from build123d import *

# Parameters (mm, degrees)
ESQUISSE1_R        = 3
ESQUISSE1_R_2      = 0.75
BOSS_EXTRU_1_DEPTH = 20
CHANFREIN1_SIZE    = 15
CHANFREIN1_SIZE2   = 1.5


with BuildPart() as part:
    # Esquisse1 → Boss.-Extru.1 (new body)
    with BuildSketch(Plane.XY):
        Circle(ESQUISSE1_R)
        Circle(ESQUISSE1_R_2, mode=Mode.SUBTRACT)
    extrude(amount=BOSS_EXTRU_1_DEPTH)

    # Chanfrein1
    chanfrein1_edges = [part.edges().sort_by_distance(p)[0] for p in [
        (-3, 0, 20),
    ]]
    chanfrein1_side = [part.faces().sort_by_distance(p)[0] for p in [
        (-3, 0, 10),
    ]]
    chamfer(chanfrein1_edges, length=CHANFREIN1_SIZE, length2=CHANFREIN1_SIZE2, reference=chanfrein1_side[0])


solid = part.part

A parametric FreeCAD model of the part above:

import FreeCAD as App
import Part
import Sketcher
from FreeCAD import Vector
Q = App.Units.Quantity


def edges_at(feature, points):
    """Names of the edges that pass closest to the given points."""
    edges = feature.Shape.Edges
    near = lambda p: min(range(len(edges)), key=lambda i: edges[i].distToShape(Part.Vertex(*p))[0])
    return sorted({f"Edge{near(p) + 1}" for p in points})

doc = App.newDocument("Part")
body = doc.addObject("PartDesign::Body", "Body")

# Sketch on XY plane
sketch1 = body.newObject("Sketcher::SketchObject", "Sketch")
sketch1.AttachmentSupport = (doc.getObject("XY_Plane"), [""])
sketch1.MapMode = "FlatFace"
sketch1.addGeometry(Part.Circle(Vector(0, 0, 0), Vector(0, 0, 1), 3), False)
sketch1.addGeometry(Part.Circle(Vector(0, 0, 0), Vector(0, 0, 1), 0.8), False)
sketch1.addConstraint(Sketcher.Constraint("Coincident", 0, 3, -1, 1))
sketch1.addConstraint(Sketcher.Constraint("Coincident", 1, 3, -1, 1))
sketch1.addConstraint(Sketcher.Constraint("Diameter", 0, Q("6 mm")))
sketch1.addConstraint(Sketcher.Constraint("Diameter", 1, Q("1.5 mm")))
pad1 = body.newObject("PartDesign::Pad", "Pad")
pad1.Profile = sketch1
pad1.Length = 20
doc.recompute()

chamfer = body.newObject("PartDesign::Chamfer", "Chamfer")
chamfer.Base = (pad1, edges_at(pad1, [(-3, 0, 20)]))
chamfer.ChamferType = "Two distances"
chamfer.Size = 15
chamfer.Size2 = 1.5

doc.recompute()
